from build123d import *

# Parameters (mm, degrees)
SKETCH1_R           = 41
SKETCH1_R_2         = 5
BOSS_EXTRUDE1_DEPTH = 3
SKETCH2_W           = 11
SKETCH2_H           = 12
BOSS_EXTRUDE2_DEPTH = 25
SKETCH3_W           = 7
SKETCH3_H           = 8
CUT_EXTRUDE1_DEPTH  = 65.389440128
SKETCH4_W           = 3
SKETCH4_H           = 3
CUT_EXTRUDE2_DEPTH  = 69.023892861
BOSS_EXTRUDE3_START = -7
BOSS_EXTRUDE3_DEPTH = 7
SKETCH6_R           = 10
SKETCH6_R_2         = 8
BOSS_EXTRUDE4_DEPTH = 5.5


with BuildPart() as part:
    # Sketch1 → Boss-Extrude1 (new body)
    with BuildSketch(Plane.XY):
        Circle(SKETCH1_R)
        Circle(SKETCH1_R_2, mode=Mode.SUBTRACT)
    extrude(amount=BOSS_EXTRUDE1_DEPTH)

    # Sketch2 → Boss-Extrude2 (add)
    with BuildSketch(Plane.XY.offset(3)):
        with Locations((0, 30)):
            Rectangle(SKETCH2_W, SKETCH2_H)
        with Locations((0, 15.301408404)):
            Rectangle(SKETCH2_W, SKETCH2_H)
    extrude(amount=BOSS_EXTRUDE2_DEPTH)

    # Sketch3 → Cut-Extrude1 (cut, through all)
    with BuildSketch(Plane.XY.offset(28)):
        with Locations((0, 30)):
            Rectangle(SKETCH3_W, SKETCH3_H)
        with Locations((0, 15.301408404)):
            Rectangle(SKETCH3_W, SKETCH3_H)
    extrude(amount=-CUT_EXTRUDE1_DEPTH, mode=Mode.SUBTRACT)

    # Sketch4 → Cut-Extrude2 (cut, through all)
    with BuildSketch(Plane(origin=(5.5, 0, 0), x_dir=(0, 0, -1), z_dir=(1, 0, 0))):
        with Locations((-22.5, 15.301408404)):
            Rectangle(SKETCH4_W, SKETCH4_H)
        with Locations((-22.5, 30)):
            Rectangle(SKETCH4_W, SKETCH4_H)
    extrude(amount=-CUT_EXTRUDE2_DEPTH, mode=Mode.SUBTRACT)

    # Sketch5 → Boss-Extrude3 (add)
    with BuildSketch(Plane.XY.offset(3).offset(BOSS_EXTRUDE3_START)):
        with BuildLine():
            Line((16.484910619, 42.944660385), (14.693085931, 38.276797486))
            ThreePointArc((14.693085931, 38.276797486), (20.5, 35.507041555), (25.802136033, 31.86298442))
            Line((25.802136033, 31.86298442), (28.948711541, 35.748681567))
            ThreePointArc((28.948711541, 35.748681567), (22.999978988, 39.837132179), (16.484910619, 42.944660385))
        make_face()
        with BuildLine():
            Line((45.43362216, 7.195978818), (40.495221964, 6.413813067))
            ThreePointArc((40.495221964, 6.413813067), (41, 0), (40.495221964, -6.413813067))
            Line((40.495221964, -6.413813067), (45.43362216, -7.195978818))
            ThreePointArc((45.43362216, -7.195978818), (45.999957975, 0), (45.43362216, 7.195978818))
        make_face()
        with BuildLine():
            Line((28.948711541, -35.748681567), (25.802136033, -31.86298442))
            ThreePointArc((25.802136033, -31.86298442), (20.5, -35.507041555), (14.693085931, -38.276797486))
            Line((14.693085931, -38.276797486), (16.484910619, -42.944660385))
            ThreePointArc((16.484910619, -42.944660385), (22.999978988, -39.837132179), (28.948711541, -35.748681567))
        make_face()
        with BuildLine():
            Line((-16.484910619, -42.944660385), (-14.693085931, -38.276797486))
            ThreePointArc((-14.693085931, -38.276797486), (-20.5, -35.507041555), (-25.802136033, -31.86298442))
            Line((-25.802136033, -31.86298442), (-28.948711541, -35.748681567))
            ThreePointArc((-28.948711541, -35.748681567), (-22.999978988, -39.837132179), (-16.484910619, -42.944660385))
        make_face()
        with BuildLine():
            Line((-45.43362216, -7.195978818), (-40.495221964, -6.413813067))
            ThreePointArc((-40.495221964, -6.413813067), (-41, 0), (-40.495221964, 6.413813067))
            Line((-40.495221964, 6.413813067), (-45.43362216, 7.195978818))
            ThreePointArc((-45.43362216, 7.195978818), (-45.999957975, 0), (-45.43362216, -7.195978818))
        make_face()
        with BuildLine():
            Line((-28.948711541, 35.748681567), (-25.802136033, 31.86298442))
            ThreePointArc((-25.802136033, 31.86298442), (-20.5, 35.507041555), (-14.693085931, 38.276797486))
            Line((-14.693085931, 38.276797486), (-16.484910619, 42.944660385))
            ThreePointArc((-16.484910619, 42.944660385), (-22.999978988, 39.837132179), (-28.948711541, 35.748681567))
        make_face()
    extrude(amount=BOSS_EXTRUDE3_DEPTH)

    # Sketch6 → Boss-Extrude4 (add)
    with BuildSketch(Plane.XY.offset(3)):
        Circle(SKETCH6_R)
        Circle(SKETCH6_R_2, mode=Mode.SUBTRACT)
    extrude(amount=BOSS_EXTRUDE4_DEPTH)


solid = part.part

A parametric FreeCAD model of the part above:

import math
import FreeCAD as App
import Part
import Sketcher
Q = App.Units.Quantity

doc = App.newDocument("Part")
body = doc.addObject("PartDesign::Body", "Body")

sketch1 = body.newObject("Sketcher::SketchObject", "Sketch")
sketch1.AttachmentSupport = (doc.getObject("XY_Plane"), [""])
sketch1.MapMode = "FlatFace"
sketch1.addGeometry(Part.Circle(App.Vector(0, 0, 0), App.Vector(0, 0, 1), 41), False)
sketch1.addGeometry(Part.Circle(App.Vector(0, 0, 0), App.Vector(0, 0, 1), 5), False)
sketch1.addConstraint(Sketcher.Constraint("Coincident", 0, 3, -1, 1))
sketch1.addConstraint(Sketcher.Constraint("Coincident", 1, 3, -1, 1))
sketch1.addConstraint(Sketcher.Constraint("Diameter", 0, Q("82 mm")))
sketch1.addConstraint(Sketcher.Constraint("Diameter", 1, Q("10 mm")))
pad1 = body.newObject("PartDesign::Pad", "Pad")
pad1.Profile = sketch1
pad1.Length = 3

sketch2 = body.newObject("Sketcher::SketchObject", "Sketch001")
sketch2.AttachmentSupport = (doc.getObject("XY_Plane"), [""])
sketch2.MapMode = "FlatFace"
sketch2.AttachmentOffset = App.Placement(App.Vector(0, 0, 3), App.Rotation())
sketch2.addGeometry(Part.LineSegment(App.Vector(-6, 36, 0), App.Vector(-6, 24, 0)), False)
sketch2.addGeometry(Part.LineSegment(App.Vector(-6, 24, 0), App.Vector(6, 24, 0)), False)
sketch2.addGeometry(Part.LineSegment(App.Vector(6, 24, 0), App.Vector(6, 36, 0)), False)
sketch2.addGeometry(Part.LineSegment(App.Vector(6, 36, 0), App.Vector(-6, 36, 0)), False)
sketch2.addGeometry(Part.LineSegment(App.Vector(-6, 21, 0), App.Vector(-6, 9, 0)), False)
sketch2.addGeometry(Part.LineSegment(App.Vector(-6, 9, 0), App.Vector(6, 9, 0)), False)
sketch2.addGeometry(Part.LineSegment(App.Vector(6, 9, 0), App.Vector(6, 21, 0)), False)
sketch2.addGeometry(Part.LineSegment(App.Vector(6, 21, 0), App.Vector(-6, 21, 0)), False)
sketch2.addConstraint(Sketcher.Constraint("Coincident", 0, 2, 1, 1))
sketch2.addConstraint(Sketcher.Constraint("Coincident", 1, 2, 2, 1))
sketch2.addConstraint(Sketcher.Constraint("Coincident", 2, 2, 3, 1))
sketch2.addConstraint(Sketcher.Constraint("Coincident", 3, 2, 0, 1))
sketch2.addConstraint(Sketcher.Constraint("Coincident", 4, 2, 5, 1))
sketch2.addConstraint(Sketcher.Constraint("Coincident", 5, 2, 6, 1))
sketch2.addConstraint(Sketcher.Constraint("Coincident", 6, 2, 7, 1))
sketch2.addConstraint(Sketcher.Constraint("Coincident", 7, 2, 4, 1))
sketch2.addConstraint(Sketcher.Constraint("Vertical", 0))
sketch2.addConstraint(Sketcher.Constraint("Horizontal", 1))
sketch2.addConstraint(Sketcher.Constraint("Vertical", 2))
sketch2.addConstraint(Sketcher.Constraint("Horizontal", 3))
sketch2.addConstraint(Sketcher.Constraint("Vertical", 4))
sketch2.addConstraint(Sketcher.Constraint("Horizontal", 5))
sketch2.addConstraint(Sketcher.Constraint("Vertical", 6))
sketch2.addConstraint(Sketcher.Constraint("Horizontal", 7))
sketch2.addConstraint(Sketcher.Constraint("Vertical", 3, 2, 4, 2))
sketch2.addConstraint(Sketcher.Constraint("Vertical", 2, 2, 5, 2))
sketch2.addConstraint(Sketcher.Constraint("Equal", 2, 4))
sketch2.addConstraint(Sketcher.Constraint("DistanceX", 1, 1, 1, 2, Q("11 mm")))
sketch2.addConstraint(Sketcher.Constraint("DistanceY", 0, 2, 0, 1, Q("12 mm")))
sketch2.addConstraint(Sketcher.Constraint("DistanceY", -1, 1, 0, 2, Q("24 mm")))
sketch2.addConstraint(Sketcher.Constraint("DistanceX", 0, 2, -1, 1, Q("5.5 mm")))
sketch2.addConstraint(Sketcher.Constraint("DistanceY", -1, 1, 4, 2, Q("9.301408 mm")))
pad2 = body.newObject("PartDesign::Pad", "Pad001")
pad2.Profile = sketch2
pad2.Length = 25

sketch3 = body.newObject("Sketcher::SketchObject", "Sketch002")
sketch3.AttachmentSupport = (doc.getObject("XY_Plane"), [""])
sketch3.MapMode = "FlatFace"
sketch3.AttachmentOffset = App.Placement(App.Vector(0, 0, 28), App.Rotation())
sketch3.addGeometry(Part.LineSegment(App.Vector(-4, 34, 0), App.Vector(-4, 26, 0)), False)
sketch3.addGeometry(Part.LineSegment(App.Vector(-4, 26, 0), App.Vector(4, 26, 0)), False)
sketch3.addGeometry(Part.LineSegment(App.Vector(4, 26, 0), App.Vector(4, 34, 0)), False)
sketch3.addGeometry(Part.LineSegment(App.Vector(4, 34, 0), App.Vector(-4, 34, 0)), False)
sketch3.addGeometry(Part.LineSegment(App.Vector(-4, 19, 0), App.Vector(-4, 11, 0)), False)
sketch3.addGeometry(Part.LineSegment(App.Vector(-4, 11, 0), App.Vector(4, 11, 0)), False)
sketch3.addGeometry(Part.LineSegment(App.Vector(4, 11, 0), App.Vector(4, 19, 0)), False)
sketch3.addGeometry(Part.LineSegment(App.Vector(4, 19, 0), App.Vector(-4, 19, 0)), False)
sketch3.addConstraint(Sketcher.Constraint("Coincident", 0, 2, 1, 1))
sketch3.addConstraint(Sketcher.Constraint("Coincident", 1, 2, 2, 1))
sketch3.addConstraint(Sketcher.Constraint("Coincident", 2, 2, 3, 1))
sketch3.addConstraint(Sketcher.Constraint("Coincident", 3, 2, 0, 1))
sketch3.addConstraint(Sketcher.Constraint("Coincident", 4, 2, 5, 1))
sketch3.addConstraint(Sketcher.Constraint("Coincident", 5, 2, 6, 1))
sketch3.addConstraint(Sketcher.Constraint("Coincident", 6, 2, 7, 1))
sketch3.addConstraint(Sketcher.Constraint("Coincident", 7, 2, 4, 1))
sketch3.addConstraint(Sketcher.Constraint("Vertical", 0))
sketch3.addConstraint(Sketcher.Constraint("Horizontal", 1))
sketch3.addConstraint(Sketcher.Constraint("Vertical", 2))
sketch3.addConstraint(Sketcher.Constraint("Horizontal", 3))
sketch3.addConstraint(Sketcher.Constraint("Vertical", 4))
sketch3.addConstraint(Sketcher.Constraint("Horizontal", 5))
sketch3.addConstraint(Sketcher.Constraint("Vertical", 6))
sketch3.addConstraint(Sketcher.Constraint("Horizontal", 7))
sketch3.addConstraint(Sketcher.Constraint("Vertical", 3, 2, 4, 2))
sketch3.addConstraint(Sketcher.Constraint("Vertical", 2, 2, 5, 2))
sketch3.addConstraint(Sketcher.Constraint("Equal", 2, 4))
sketch3.addConstraint(Sketcher.Constraint("DistanceX", 1, 1, 1, 2, Q("7 mm")))
sketch3.addConstraint(Sketcher.Constraint("DistanceY", 0, 2, 0, 1, Q("8 mm")))
sketch3.addConstraint(Sketcher.Constraint("DistanceY", -1, 1, 0, 2, Q("26 mm")))
sketch3.addConstraint(Sketcher.Constraint("DistanceX", 0, 2, -1, 1, Q("3.5 mm")))
sketch3.addConstraint(Sketcher.Constraint("DistanceY", -1, 1, 4, 2, Q("11.301408 mm")))
pocket1 = body.newObject("PartDesign::Pocket", "Pocket")
pocket1.Profile = sketch3
pocket1.Type = "ThroughAll"

sketch4 = body.newObject("Sketcher::SketchObject", "Sketch003")
sketch4.AttachmentSupport = (doc.getObject("YZ_Plane"), [""])
sketch4.MapMode = "FlatFace"
sketch4.AttachmentOffset = App.Placement(App.Vector(0, 0, 5.5), App.Rotation())
sketch4.addGeometry(Part.LineSegment(App.Vector(16.8, 24, 0), App.Vector(13.8, 24, 0)), False)
sketch4.addGeometry(Part.LineSegment(App.Vector(13.8, 24, 0), App.Vector(13.8, 21, 0)), False)
sketch4.addGeometry(Part.LineSegment(App.Vector(13.8, 21, 0), App.Vector(16.8, 21, 0)), False)
sketch4.addGeometry(Part.LineSegment(App.Vector(16.8, 21, 0), App.Vector(16.8, 24, 0)), False)
sketch4.addGeometry(Part.LineSegment(App.Vector(31.5, 24, 0), App.Vector(28.5, 24, 0)), False)
sketch4.addGeometry(Part.LineSegment(App.Vector(28.5, 24, 0), App.Vector(28.5, 21, 0)), False)
sketch4.addGeometry(Part.LineSegment(App.Vector(28.5, 21, 0), App.Vector(31.5, 21, 0)), False)
sketch4.addGeometry(Part.LineSegment(App.Vector(31.5, 21, 0), App.Vector(31.5, 24, 0)), False)
sketch4.addConstraint(Sketcher.Constraint("Coincident", 0, 2, 1, 1))
sketch4.addConstraint(Sketcher.Constraint("Coincident", 1, 2, 2, 1))
sketch4.addConstraint(Sketcher.Constraint("Coincident", 2, 2, 3, 1))
sketch4.addConstraint(Sketcher.Constraint("Coincident", 3, 2, 0, 1))
sketch4.addConstraint(Sketcher.Constraint("Coincident", 4, 2, 5, 1))
sketch4.addConstraint(Sketcher.Constraint("Coincident", 5, 2, 6, 1))
sketch4.addConstraint(Sketcher.Constraint("Coincident", 6, 2, 7, 1))
sketch4.addConstraint(Sketcher.Constraint("Coincident", 7, 2, 4, 1))
sketch4.addConstraint(Sketcher.Constraint("Horizontal", 0))
sketch4.addConstraint(Sketcher.Constraint("Vertical", 1))
sketch4.addConstraint(Sketcher.Constraint("Horizontal", 2))
sketch4.addConstraint(Sketcher.Constraint("Vertical", 3))
sketch4.addConstraint(Sketcher.Constraint("Horizontal", 4))
sketch4.addConstraint(Sketcher.Constraint("Vertical", 5))
sketch4.addConstraint(Sketcher.Constraint("Horizontal", 6))
sketch4.addConstraint(Sketcher.Constraint("Vertical", 7))
sketch4.addConstraint(Sketcher.Constraint("Horizontal", 3, 2, 4, 2))
sketch4.addConstraint(Sketcher.Constraint("Horizontal", 2, 2, 5, 2))
sketch4.addConstraint(Sketcher.Constraint("Equal", 2, 4))
sketch4.addConstraint(Sketcher.Constraint("Equal", 6, 1))
sketch4.addConstraint(Sketcher.Constraint("DistanceX", 0, 2, 0, 1, Q("3 mm")))
sketch4.addConstraint(Sketcher.Constraint("DistanceY", -1, 1, 0, 2, Q("24 mm")))
sketch4.addConstraint(Sketcher.Constraint("DistanceX", -1, 1, 4, 2, Q("28.5 mm")))
sketch4.addConstraint(Sketcher.Constraint("DistanceX", -1, 1, 0, 2, Q("13.801408 mm")))
pocket2 = body.newObject("PartDesign::Pocket", "Pocket001")
pocket2.Profile = sketch4
pocket2.Type = "ThroughAll"

sketch5 = body.newObject("Sketcher::SketchObject", "Sketch004")
sketch5.AttachmentSupport = (doc.getObject("XY_Plane"), [""])
sketch5.MapMode = "FlatFace"
sketch5.AttachmentOffset = App.Placement(App.Vector(0, 0, -4), App.Rotation())
sketch5.addGeometry(Part.LineSegment(App.Vector(16.5, 42.9, 0), App.Vector(14.7, 38.3, 0)), False)
sketch5.addGeometry(Part.ArcOfCircle(Part.Circle(App.Vector(0, 0, 0), App.Vector(0, 0, 1), 41), math.radians(51), math.radians(69)), False)
sketch5.addGeometry(Part.LineSegment(App.Vector(25.8, 31.9, 0), App.Vector(28.9, 35.7, 0)), False)
sketch5.addGeometry(Part.ArcOfCircle(Part.Circle(App.Vector(0, 0, 0), App.Vector(0, 0, 1), 46), math.radians(51), math.radians(69)), False)
sketch5.addGeometry(Part.LineSegment(App.Vector(45.4, 7.2, 0), App.Vector(40.5, 6.4, 0)), False)
sketch5.addGeometry(Part.ArcOfCircle(Part.Circle(App.Vector(0, 0, 0), App.Vector(0, 0, 1), 41), math.radians(-9), math.radians(9)), False)
sketch5.addGeometry(Part.LineSegment(App.Vector(40.5, -6.4, 0), App.Vector(45.4, -7.2, 0)), False)
sketch5.addGeometry(Part.ArcOfCircle(Part.Circle(App.Vector(0, 0, 0), App.Vector(0, 0, 1), 46), math.radians(-9), math.radians(9)), False)
sketch5.addGeometry(Part.LineSegment(App.Vector(28.9, -35.7, 0), App.Vector(25.8, -31.9, 0)), False)
sketch5.addGeometry(Part.ArcOfCircle(Part.Circle(App.Vector(0, 0, 0), App.Vector(0, 0, 1), 41), math.radians(-69), math.radians(-51)), False)
sketch5.addGeometry(Part.LineSegment(App.Vector(14.7, -38.3, 0), App.Vector(16.5, -42.9, 0)), False)
sketch5.addGeometry(Part.ArcOfCircle(Part.Circle(App.Vector(0, 0, 0), App.Vector(0, 0, 1), 46), math.radians(-69), math.radians(-51)), False)
sketch5.addGeometry(Part.LineSegment(App.Vector(-16.5, -42.9, 0), App.Vector(-14.7, -38.3, 0)), False)
sketch5.addGeometry(Part.ArcOfCircle(Part.Circle(App.Vector(0, 0, 0), App.Vector(0, 0, 1), 41), math.radians(-129), math.radians(-111)), False)
sketch5.addGeometry(Part.LineSegment(App.Vector(-25.8, -31.9, 0), App.Vector(-28.9, -35.7, 0)), False)
sketch5.addGeometry(Part.ArcOfCircle(Part.Circle(App.Vector(0, 0, 0), App.Vector(0, 0, 1), 46), math.radians(-129), math.radians(-111)), False)
sketch5.addGeometry(Part.LineSegment(App.Vector(-45.4, -7.2, 0), App.Vector(-40.5, -6.4, 0)), False)
sketch5.addGeometry(Part.ArcOfCircle(Part.Circle(App.Vector(0, 0, 0), App.Vector(0, 0, 1), 41), math.radians(171), math.radians(189)), False)
sketch5.addGeometry(Part.LineSegment(App.Vector(-40.5, 6.4, 0), App.Vector(-45.4, 7.2, 0)), False)
sketch5.addGeometry(Part.ArcOfCircle(Part.Circle(App.Vector(0, 0, 0), App.Vector(0, 0, 1), 46), math.radians(171), math.radians(189)), False)
sketch5.addGeometry(Part.LineSegment(App.Vector(-28.9, 35.7, 0), App.Vector(-25.8, 31.9, 0)), False)
sketch5.addGeometry(Part.ArcOfCircle(Part.Circle(App.Vector(0, 0, 0), App.Vector(0, 0, 1), 41), math.radians(111), math.radians(129)), False)
sketch5.addGeometry(Part.LineSegment(App.Vector(-14.7, 38.3, 0), App.Vector(-16.5, 42.9, 0)), False)
sketch5.addGeometry(Part.ArcOfCircle(Part.Circle(App.Vector(0, 0, 0), App.Vector(0, 0, 1), 46), math.radians(111), math.radians(129)), False)
sketch5.addConstraint(Sketcher.Constraint("Coincident", 0, 2, 1, 2))
sketch5.addConstraint(Sketcher.Constraint("Coincident", 1, 1, 2, 1))
sketch5.addConstraint(Sketcher.Constraint("Coincident", 2, 2, 3, 1))
sketch5.addConstraint(Sketcher.Constraint("Coincident", 3, 2, 0, 1))
sketch5.addConstraint(Sketcher.Constraint("Coincident", 4, 2, 5, 2))
sketch5.addConstraint(Sketcher.Constraint("Coincident", 5, 1, 6, 1))
sketch5.addConstraint(Sketcher.Constraint("Coincident", 6, 2, 7, 1))
sketch5.addConstraint(Sketcher.Constraint("Coincident", 7, 2, 4, 1))
sketch5.addConstraint(Sketcher.Constraint("Coincident", 8, 2, 9, 2))
sketch5.addConstraint(Sketcher.Constraint("Coincident", 9, 1, 10, 1))
sketch5.addConstraint(Sketcher.Constraint("Coincident", 10, 2, 11, 1))
sketch5.addConstraint(Sketcher.Constraint("Coincident", 11, 2, 8, 1))
sketch5.addConstraint(Sketcher.Constraint("Coincident", 12, 2, 13, 2))
sketch5.addConstraint(Sketcher.Constraint("Coincident", 13, 1, 14, 1))
sketch5.addConstraint(Sketcher.Constraint("Coincident", 14, 2, 15, 1))
sketch5.addConstraint(Sketcher.Constraint("Coincident", 15, 2, 12, 1))
sketch5.addConstraint(Sketcher.Constraint("Coincident", 16, 2, 17, 2))
sketch5.addConstraint(Sketcher.Constraint("Coincident", 17, 1, 18, 1))
sketch5.addConstraint(Sketcher.Constraint("Coincident", 18, 2, 19, 1))
sketch5.addConstraint(Sketcher.Constraint("Coincident", 19, 2, 16, 1))
sketch5.addConstraint(Sketcher.Constraint("Coincident", 20, 2, 21, 2))
sketch5.addConstraint(Sketcher.Constraint("Coincident", 21, 1, 22, 1))
sketch5.addConstraint(Sketcher.Constraint("Coincident", 22, 2, 23, 1))
sketch5.addConstraint(Sketcher.Constraint("Coincident", 23, 2, 20, 1))
sketch5.addConstraint(Sketcher.Constraint("Coincident", 1, 3, -1, 1))
sketch5.addConstraint(Sketcher.Constraint("Coincident", 3, 3, -1, 1))
sketch5.addConstraint(Sketcher.Constraint("Coincident", 5, 3, -1, 1))
sketch5.addConstraint(Sketcher.Constraint("Coincident", 7, 3, -1, 1))
sketch5.addConstraint(Sketcher.Constraint("Coincident", 9, 3, -1, 1))
sketch5.addConstraint(Sketcher.Constraint("Coincident", 11, 3, -1, 1))
sketch5.addConstraint(Sketcher.Constraint("Coincident", 13, 3, -1, 1))
sketch5.addConstraint(Sketcher.Constraint("Coincident", 15, 3, -1, 1))
sketch5.addConstraint(Sketcher.Constraint("Coincident", 17, 3, -1, 1))
sketch5.addConstraint(Sketcher.Constraint("Coincident", 19, 3, -1, 1))
sketch5.addConstraint(Sketcher.Constraint("Coincident", 21, 3, -1, 1))
sketch5.addConstraint(Sketcher.Constraint("Coincident", 23, 3, -1, 1))
sketch5.addConstraint(Sketcher.Constraint("Equal", 1, 5))
sketch5.addConstraint(Sketcher.Constraint("Equal", 3, 7))
sketch5.addConstraint(Sketcher.Constraint("Equal", 5, 9))
sketch5.addConstraint(Sketcher.Constraint("Equal", 7, 11))
sketch5.addConstraint(Sketcher.Constraint("Equal", 9, 13))
sketch5.addConstraint(Sketcher.Constraint("Equal", 11, 15))
sketch5.addConstraint(Sketcher.Constraint("Equal", 13, 17))
sketch5.addConstraint(Sketcher.Constraint("Equal", 15, 19))
sketch5.addConstraint(Sketcher.Constraint("Equal", 17, 21))
sketch5.addConstraint(Sketcher.Constraint("Equal", 19, 23))
sketch5.addConstraint(Sketcher.Constraint("Parallel", 0, 12))
sketch5.addConstraint(Sketcher.Constraint("Parallel", 2, 14))
sketch5.addConstraint(Sketcher.Constraint("Parallel", 4, 16))
sketch5.addConstraint(Sketcher.Constraint("Parallel", 6, 18))
sketch5.addConstraint(Sketcher.Constraint("Parallel", 8, 20))
sketch5.addConstraint(Sketcher.Constraint("Parallel", 10, 22))
sketch5.addConstraint(Sketcher.Constraint("Horizontal", 9, 1, 12, 2))
sketch5.addConstraint(Sketcher.Constraint("Horizontal", 8, 2, 13, 1))
sketch5.addConstraint(Sketcher.Constraint("Horizontal", 11, 2, 14, 2))
sketch5.addConstraint(Sketcher.Constraint("Horizontal", 10, 2, 15, 2))
sketch5.addConstraint(Sketcher.Constraint("Horizontal", 5, 1, 16, 2))
sketch5.addConstraint(Sketcher.Constraint("Horizontal", 4, 2, 17, 1))
sketch5.addConstraint(Sketcher.Constraint("Horizontal", 7, 2, 18, 2))
sketch5.addConstraint(Sketcher.Constraint("Horizontal", 1, 1, 20, 2))
sketch5.addConstraint(Sketcher.Constraint("Horizontal", 0, 2, 21, 1))
sketch5.addConstraint(Sketcher.Constraint("Vertical", 4, 2, 5, 1))
sketch5.addConstraint(Sketcher.Constraint("Vertical", 1, 1, 8, 2))
sketch5.addConstraint(Sketcher.Constraint("Vertical", 0, 2, 9, 1))
sketch5.addConstraint(Sketcher.Constraint("Radius", 1, Q("41 mm")))
sketch5.addConstraint(Sketcher.Constraint("Angle", 0, Q("-111 deg")))
sketch5.addConstraint(Sketcher.Constraint("Angle", 2, Q("51 deg")))
sketch5.addConstraint(Sketcher.Constraint("Angle", 4, Q("-171 deg")))
sketch5.addConstraint(Sketcher.Constraint("Radius", 3, Q("45.999958 mm")))
sketch5.addConstraint(Sketcher.Constraint("DistanceX", 3, 2, 2, 2, Q("12.463801 mm")))
sketch5.addConstraint(Sketcher.Constraint("DistanceX", -1, 1, 2, 2, Q("28.948712 mm")))
sketch5.addConstraint(Sketcher.Constraint("DistanceX", -1, 1, 4, 2, Q("40.495222 mm")))
pad3 = body.newObject("PartDesign::Pad", "Pad002")
pad3.Profile = sketch5
pad3.Length = 7

sketch6 = body.newObject("Sketcher::SketchObject", "Sketch005")
sketch6.AttachmentSupport = (doc.getObject("XY_Plane"), [""])
sketch6.MapMode = "FlatFace"
sketch6.AttachmentOffset = App.Placement(App.Vector(0, 0, 3), App.Rotation())
sketch6.addGeometry(Part.Circle(App.Vector(0, 0, 0), App.Vector(0, 0, 1), 10), False)
sketch6.addGeometry(Part.Circle(App.Vector(0, 0, 0), App.Vector(0, 0, 1), 8), False)
sketch6.addConstraint(Sketcher.Constraint("Coincident", 0, 3, -1, 1))
sketch6.addConstraint(Sketcher.Constraint("Coincident", 1, 3, -1, 1))
sketch6.addConstraint(Sketcher.Constraint("Diameter", 0, Q("20 mm")))
sketch6.addConstraint(Sketcher.Constraint("Diameter", 1, Q("16 mm")))
pad4 = body.newObject("PartDesign::Pad", "Pad003")
pad4.Profile = sketch6
pad4.Length = 5.5

doc.recompute()
